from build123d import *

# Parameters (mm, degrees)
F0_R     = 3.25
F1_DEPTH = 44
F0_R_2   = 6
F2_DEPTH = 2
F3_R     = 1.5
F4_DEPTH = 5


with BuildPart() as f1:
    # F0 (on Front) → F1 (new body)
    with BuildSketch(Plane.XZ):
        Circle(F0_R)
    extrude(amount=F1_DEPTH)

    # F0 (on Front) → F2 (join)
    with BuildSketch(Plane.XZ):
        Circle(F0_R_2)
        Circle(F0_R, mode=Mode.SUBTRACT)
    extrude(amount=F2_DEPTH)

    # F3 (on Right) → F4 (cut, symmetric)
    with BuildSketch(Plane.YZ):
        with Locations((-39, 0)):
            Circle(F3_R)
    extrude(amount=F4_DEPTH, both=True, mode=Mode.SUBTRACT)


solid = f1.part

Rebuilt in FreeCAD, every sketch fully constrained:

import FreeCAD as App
import Part
import Sketcher

doc = App.newDocument("Part")
body = doc.addObject("PartDesign::Body", "Body")

# Sketch on XZ plane
sketch1 = doc.addObject("Sketcher::SketchObject", "Sketch")
body.addObject(sketch1)
sketch1.AttachmentSupport = (doc.XZ_Plane, [""])
sketch1.MapMode = "FlatFace"
sketch1.addGeometry(Part.Circle(App.Vector(0, 0, 0), App.Vector(0, 0, 1), 3.25), False)
sketch1.addConstraint(Sketcher.Constraint("Coincident", 0, 3, -1, 1))
sketch1.addConstraint(Sketcher.Constraint("Diameter", 0, 6.5))
pad1 = doc.addObject("PartDesign::Pad", "Pad")
body.addObject(pad1)
pad1.Profile = sketch1
pad1.Length = 44

# Sketch on XZ plane
sketch2 = doc.addObject("Sketcher::SketchObject", "Sketch001")
body.addObject(sketch2)
sketch2.AttachmentSupport = (doc.XZ_Plane, [""])
sketch2.MapMode = "FlatFace"
sketch2.addGeometry(Part.Circle(App.Vector(0, 0, 0), App.Vector(0, 0, 1), 6), False)
sketch2.addGeometry(Part.Circle(App.Vector(0, 0, 0), App.Vector(0, 0, 1), 3.25), False)
sketch2.addConstraint(Sketcher.Constraint("Coincident", 0, 3, -1, 1))
sketch2.addConstraint(Sketcher.Constraint("Coincident", 1, 3, -1, 1))
sketch2.addConstraint(Sketcher.Constraint("Diameter", 0, 12.0))
sketch2.addConstraint(Sketcher.Constraint("Diameter", 1, 6.5))
pad2 = doc.addObject("PartDesign::Pad", "Pad001")
body.addObject(pad2)
pad2.Profile = sketch2
pad2.Length = 2

# Sketch on YZ plane
sketch3 = doc.addObject("Sketcher::SketchObject", "Sketch002")
body.addObject(sketch3)
sketch3.AttachmentSupport = (doc.YZ_Plane, [""])
sketch3.MapMode = "FlatFace"
sketch3.addGeometry(Part.Circle(App.Vector(-39, 0, 0), App.Vector(0, 0, 1), 1.5), False)
sketch3.addConstraint(Sketcher.Constraint("PointOnObject", 0, 3, -1))
sketch3.addConstraint(Sketcher.Constraint("Diameter", 0, 3.0))
sketch3.addConstraint(Sketcher.Constraint("DistanceX", 0, 3, -1, 1, 39.0))
pocket1 = doc.addObject("PartDesign::Pocket", "Pocket")
body.addObject(pocket1)
pocket1.Profile = sketch3
pocket1.Length = 10
pocket1.Midplane = True

doc.recompute()
